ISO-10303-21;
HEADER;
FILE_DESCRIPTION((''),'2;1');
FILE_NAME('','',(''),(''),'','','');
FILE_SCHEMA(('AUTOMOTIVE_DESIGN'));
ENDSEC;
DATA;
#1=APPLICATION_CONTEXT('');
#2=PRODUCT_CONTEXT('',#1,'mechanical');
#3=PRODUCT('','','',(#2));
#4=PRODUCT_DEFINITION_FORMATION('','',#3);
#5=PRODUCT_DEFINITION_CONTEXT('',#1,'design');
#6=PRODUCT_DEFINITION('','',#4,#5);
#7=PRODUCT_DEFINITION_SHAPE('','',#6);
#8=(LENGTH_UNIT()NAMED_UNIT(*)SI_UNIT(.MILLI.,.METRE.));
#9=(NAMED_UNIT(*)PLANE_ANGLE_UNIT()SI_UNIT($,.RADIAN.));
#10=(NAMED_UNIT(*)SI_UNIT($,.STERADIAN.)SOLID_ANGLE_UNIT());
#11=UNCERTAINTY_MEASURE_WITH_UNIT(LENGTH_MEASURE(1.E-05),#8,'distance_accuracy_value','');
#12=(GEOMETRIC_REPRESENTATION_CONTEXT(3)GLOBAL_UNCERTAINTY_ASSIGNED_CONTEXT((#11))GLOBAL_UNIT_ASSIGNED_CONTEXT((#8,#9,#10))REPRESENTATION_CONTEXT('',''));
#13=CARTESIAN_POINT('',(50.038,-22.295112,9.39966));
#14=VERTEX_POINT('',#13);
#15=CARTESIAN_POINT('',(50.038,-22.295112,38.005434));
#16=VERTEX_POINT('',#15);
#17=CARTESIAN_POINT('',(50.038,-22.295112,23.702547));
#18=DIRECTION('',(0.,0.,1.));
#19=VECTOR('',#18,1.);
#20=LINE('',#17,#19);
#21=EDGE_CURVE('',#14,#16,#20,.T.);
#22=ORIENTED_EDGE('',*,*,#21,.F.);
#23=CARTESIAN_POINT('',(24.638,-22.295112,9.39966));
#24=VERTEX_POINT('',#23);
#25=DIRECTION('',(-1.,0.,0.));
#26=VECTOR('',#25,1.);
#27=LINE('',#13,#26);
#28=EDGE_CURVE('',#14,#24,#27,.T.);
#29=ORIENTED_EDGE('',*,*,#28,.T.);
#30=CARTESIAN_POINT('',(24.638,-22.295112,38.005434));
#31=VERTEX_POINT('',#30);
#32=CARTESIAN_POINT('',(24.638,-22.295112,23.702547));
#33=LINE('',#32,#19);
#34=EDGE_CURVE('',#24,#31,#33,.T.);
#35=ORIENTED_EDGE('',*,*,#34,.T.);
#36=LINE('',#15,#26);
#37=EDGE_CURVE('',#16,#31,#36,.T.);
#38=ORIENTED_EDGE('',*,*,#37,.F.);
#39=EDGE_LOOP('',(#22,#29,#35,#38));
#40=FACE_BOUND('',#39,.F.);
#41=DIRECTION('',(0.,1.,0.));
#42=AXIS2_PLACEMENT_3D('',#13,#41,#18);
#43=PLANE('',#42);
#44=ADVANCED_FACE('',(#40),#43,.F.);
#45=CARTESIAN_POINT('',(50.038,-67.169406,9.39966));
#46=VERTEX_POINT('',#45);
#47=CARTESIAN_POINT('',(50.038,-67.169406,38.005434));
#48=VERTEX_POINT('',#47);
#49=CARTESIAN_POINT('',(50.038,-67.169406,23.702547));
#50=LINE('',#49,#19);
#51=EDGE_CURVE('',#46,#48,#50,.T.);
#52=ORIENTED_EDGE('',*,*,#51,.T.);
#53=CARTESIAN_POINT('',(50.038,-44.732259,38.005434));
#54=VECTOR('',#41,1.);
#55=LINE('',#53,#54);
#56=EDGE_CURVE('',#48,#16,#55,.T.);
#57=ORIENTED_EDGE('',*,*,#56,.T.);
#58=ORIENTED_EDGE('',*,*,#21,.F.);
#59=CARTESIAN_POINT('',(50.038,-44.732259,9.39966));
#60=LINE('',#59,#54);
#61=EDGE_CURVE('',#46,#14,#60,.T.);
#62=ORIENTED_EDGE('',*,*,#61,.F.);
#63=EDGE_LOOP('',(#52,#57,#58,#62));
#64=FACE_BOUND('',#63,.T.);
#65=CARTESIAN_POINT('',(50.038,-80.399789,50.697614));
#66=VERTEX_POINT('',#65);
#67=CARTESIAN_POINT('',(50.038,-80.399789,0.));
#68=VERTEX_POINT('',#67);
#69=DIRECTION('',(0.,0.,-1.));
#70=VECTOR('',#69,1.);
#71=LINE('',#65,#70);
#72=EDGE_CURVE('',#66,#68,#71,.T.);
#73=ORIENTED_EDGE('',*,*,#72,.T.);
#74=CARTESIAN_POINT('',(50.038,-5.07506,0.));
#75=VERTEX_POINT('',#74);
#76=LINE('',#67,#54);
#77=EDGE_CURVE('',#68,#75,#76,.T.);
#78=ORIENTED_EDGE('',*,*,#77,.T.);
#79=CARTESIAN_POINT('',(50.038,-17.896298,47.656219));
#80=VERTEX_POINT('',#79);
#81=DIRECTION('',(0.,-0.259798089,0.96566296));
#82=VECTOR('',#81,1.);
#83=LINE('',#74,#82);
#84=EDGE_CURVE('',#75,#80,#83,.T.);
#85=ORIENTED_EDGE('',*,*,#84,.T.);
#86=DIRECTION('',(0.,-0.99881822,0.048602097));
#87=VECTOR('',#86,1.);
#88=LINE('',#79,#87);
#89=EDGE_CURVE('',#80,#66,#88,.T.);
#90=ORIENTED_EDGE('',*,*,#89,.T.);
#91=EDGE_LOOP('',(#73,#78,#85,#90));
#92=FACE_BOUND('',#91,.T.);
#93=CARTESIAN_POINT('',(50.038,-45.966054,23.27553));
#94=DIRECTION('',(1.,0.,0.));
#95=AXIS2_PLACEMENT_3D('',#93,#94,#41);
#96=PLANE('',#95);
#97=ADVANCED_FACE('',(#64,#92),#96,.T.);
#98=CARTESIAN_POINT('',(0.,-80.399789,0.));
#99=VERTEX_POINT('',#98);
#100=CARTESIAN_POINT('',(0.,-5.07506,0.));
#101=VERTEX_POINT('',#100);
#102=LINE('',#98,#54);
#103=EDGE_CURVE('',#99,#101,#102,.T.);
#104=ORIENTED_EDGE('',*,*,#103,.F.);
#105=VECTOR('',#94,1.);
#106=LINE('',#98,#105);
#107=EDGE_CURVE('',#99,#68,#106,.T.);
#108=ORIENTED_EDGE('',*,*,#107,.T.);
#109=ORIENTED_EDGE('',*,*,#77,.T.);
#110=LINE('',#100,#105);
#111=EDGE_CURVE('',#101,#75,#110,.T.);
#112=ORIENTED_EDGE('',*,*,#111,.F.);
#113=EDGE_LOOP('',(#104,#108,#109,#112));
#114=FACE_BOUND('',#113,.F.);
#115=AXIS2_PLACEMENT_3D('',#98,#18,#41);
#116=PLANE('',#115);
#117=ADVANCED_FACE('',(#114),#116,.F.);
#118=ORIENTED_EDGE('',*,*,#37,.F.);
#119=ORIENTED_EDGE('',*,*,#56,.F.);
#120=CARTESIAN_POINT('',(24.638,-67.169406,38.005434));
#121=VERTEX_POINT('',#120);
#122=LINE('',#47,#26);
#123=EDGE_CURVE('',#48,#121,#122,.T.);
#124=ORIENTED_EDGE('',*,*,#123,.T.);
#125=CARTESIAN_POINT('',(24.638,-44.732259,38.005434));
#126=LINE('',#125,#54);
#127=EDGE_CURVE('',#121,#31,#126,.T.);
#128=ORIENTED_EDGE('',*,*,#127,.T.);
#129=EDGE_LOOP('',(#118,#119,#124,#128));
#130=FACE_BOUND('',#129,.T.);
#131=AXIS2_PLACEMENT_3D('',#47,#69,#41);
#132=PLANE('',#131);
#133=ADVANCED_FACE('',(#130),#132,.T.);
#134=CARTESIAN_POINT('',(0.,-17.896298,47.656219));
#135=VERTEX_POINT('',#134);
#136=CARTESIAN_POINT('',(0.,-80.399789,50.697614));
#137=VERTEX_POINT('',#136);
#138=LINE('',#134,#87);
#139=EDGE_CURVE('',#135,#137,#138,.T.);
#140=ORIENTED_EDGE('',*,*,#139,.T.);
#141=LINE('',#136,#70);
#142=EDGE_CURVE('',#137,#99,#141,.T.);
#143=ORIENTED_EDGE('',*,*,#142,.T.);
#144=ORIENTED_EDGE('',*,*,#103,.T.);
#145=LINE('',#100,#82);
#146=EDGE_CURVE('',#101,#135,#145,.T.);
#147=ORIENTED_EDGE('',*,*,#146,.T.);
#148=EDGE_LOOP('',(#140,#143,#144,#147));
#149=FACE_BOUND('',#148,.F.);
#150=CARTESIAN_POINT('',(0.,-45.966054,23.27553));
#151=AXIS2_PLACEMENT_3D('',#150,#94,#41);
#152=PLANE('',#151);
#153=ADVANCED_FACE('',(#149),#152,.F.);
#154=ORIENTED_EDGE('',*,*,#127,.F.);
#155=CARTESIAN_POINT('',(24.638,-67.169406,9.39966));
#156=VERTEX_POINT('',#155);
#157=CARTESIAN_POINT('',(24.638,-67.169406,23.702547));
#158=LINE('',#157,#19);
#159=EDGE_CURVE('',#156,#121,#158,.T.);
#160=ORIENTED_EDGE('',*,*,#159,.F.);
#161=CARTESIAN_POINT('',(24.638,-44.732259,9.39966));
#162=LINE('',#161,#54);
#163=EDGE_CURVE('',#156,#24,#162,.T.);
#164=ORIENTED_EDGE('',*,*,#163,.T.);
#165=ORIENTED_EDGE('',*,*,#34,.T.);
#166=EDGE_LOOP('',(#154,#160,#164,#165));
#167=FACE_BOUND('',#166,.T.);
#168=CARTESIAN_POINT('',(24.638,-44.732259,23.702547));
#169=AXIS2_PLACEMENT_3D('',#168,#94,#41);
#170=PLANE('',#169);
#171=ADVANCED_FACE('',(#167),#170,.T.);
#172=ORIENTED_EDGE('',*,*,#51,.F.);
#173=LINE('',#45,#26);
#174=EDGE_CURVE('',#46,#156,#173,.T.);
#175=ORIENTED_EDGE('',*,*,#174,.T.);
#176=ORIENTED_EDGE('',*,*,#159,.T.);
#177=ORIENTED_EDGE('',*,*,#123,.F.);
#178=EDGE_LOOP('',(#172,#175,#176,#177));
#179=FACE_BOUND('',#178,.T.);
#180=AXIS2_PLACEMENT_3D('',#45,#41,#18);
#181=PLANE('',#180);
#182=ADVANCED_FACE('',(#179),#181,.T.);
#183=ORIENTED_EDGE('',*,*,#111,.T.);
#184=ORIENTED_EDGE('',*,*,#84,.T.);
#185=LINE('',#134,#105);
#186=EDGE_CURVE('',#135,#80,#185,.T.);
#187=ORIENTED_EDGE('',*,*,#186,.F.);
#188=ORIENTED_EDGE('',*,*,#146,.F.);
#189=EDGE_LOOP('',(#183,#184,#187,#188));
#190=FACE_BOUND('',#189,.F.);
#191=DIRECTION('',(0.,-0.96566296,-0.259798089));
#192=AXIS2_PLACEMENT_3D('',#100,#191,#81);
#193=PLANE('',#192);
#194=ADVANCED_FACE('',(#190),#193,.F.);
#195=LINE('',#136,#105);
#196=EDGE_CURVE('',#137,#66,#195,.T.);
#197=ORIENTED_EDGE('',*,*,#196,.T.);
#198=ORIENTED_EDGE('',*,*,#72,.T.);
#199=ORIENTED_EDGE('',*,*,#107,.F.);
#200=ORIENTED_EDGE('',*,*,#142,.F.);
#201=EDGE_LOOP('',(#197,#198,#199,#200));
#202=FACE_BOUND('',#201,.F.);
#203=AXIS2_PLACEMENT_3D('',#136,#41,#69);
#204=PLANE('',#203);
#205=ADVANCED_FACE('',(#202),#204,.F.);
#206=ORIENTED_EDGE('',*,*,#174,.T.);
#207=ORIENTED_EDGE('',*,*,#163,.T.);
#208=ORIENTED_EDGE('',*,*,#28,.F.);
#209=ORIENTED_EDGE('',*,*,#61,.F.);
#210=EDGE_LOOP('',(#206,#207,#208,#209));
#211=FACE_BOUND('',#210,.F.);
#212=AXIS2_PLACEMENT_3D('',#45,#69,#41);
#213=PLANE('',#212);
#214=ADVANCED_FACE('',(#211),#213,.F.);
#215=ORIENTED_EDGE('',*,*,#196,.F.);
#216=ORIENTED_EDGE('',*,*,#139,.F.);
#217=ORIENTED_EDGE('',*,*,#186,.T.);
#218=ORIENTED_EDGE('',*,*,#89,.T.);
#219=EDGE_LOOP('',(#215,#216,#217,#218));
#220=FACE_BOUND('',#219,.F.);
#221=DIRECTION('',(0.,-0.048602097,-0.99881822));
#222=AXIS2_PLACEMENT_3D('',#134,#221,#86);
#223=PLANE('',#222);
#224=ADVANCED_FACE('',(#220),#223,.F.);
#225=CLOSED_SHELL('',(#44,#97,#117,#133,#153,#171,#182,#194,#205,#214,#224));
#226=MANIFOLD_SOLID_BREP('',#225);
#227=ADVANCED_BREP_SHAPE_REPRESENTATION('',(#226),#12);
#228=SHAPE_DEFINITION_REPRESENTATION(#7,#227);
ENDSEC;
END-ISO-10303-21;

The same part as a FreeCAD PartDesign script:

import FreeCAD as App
import Part
import Sketcher

V = App.Vector
Q = App.Units.Quantity

doc = App.newDocument("Part")
params = doc.addObject("Spreadsheet::Sheet", "Params")
for row, (alias, value) in enumerate([
    ("pad1_length", "1.97 in"),
    ("pocket1_length", "1 in"),
], start=1):
    params.set(f"A{row}", alias)
    params.set(f"B{row}", "=" + value)
    params.setAlias(f"B{row}", alias)

body = doc.addObject("PartDesign::Body", "Body")

# Sketch on YZ plane
sketch1 = body.newObject("Sketcher::SketchObject", "Sketch")
sketch1.AttachmentSupport = (doc.getObject("YZ_Plane"), [""])
sketch1.MapMode = "FlatFace"
sketch1.addGeometry(Part.LineSegment(V(-80, 0, 0), V(-5, 0, 0)), False)
sketch1.addGeometry(Part.LineSegment(V(-5, 0, 0), V(-18, 48, 0)), False)
sketch1.addGeometry(Part.LineSegment(V(-18, 48, 0), V(-80, 51, 0)), False)
sketch1.addGeometry(Part.LineSegment(V(-80, 51, 0), V(-80, 0, 0)), False)
sketch1.addConstraint(Sketcher.Constraint("Coincident", 0, 2, 1, 1))
sketch1.addConstraint(Sketcher.Constraint("Coincident", 1, 2, 2, 1))
sketch1.addConstraint(Sketcher.Constraint("Coincident", 2, 2, 3, 1))
sketch1.addConstraint(Sketcher.Constraint("Coincident", 3, 2, 0, 1))
sketch1.addConstraint(Sketcher.Constraint("Horizontal", 0))
sketch1.addConstraint(Sketcher.Constraint("Vertical", 3))
sketch1.addConstraint(Sketcher.Constraint("PointOnObject", 0, 2, -1))
sketch1.addConstraint(Sketcher.Constraint("DistanceX", 0, 1, 0, 2, Q("75.324729 mm")))
sketch1.addConstraint(Sketcher.Constraint("DistanceX", 1, 2, -1, 1, Q("17.896298 mm")))
sketch1.addConstraint(Sketcher.Constraint("Distance", 1, Q("49.350779 mm")))
sketch1.addConstraint(Sketcher.Constraint("DistanceY", 3, 2, 3, 1, Q("50.697614 mm")))
sketch1.addConstraint(Sketcher.Constraint("DistanceX", 0, 2, -1, 1, Q("5.07506 mm")))
pad1 = body.newObject("PartDesign::Pad", "Pad")
pad1.Profile = sketch1
pad1.setExpression("Length", "Params.pad1_length")

# Sketch on YZ plane
sketch2 = body.newObject("Sketcher::SketchObject", "Sketch001")
sketch2.AttachmentSupport = (doc.getObject("YZ_Plane"), [""])
sketch2.MapMode = "FlatFace"
sketch2.AttachmentOffset = App.Placement(V(0, 0, 1.97 * 25.4), App.Rotation())
sketch2.addGeometry(Part.LineSegment(V(-67, 38, 0), V(-67, 9, 0)), False)
sketch2.addGeometry(Part.LineSegment(V(-67, 9, 0), V(-22, 9, 0)), False)
sketch2.addGeometry(Part.LineSegment(V(-22, 9, 0), V(-22, 38, 0)), False)
sketch2.addGeometry(Part.LineSegment(V(-22, 38, 0), V(-67, 38, 0)), False)
sketch2.addConstraint(Sketcher.Constraint("Coincident", 0, 2, 1, 1))
sketch2.addConstraint(Sketcher.Constraint("Coincident", 1, 2, 2, 1))
sketch2.addConstraint(Sketcher.Constraint("Coincident", 2, 2, 3, 1))
sketch2.addConstraint(Sketcher.Constraint("Coincident", 3, 2, 0, 1))
sketch2.addConstraint(Sketcher.Constraint("Vertical", 0))
sketch2.addConstraint(Sketcher.Constraint("Horizontal", 1))
sketch2.addConstraint(Sketcher.Constraint("Vertical", 2))
sketch2.addConstraint(Sketcher.Constraint("Horizontal", 3))
sketch2.addConstraint(Sketcher.Constraint("DistanceX", 1, 1, 1, 2, Q("44.874294 mm")))
sketch2.addConstraint(Sketcher.Constraint("DistanceY", 0, 2, 0, 1, Q("28.605775 mm")))
sketch2.addConstraint(Sketcher.Constraint("DistanceY", -1, 1, 0, 2, Q("9.39966 mm")))
sketch2.addConstraint(Sketcher.Constraint("DistanceX", 1, 2, -1, 1, Q("22.295112 mm")))
pocket1 = body.newObject("PartDesign::Pocket", "Pocket")
pocket1.Profile = sketch2
pocket1.setExpression("Length", "Params.pocket1_length")

doc.recompute()
